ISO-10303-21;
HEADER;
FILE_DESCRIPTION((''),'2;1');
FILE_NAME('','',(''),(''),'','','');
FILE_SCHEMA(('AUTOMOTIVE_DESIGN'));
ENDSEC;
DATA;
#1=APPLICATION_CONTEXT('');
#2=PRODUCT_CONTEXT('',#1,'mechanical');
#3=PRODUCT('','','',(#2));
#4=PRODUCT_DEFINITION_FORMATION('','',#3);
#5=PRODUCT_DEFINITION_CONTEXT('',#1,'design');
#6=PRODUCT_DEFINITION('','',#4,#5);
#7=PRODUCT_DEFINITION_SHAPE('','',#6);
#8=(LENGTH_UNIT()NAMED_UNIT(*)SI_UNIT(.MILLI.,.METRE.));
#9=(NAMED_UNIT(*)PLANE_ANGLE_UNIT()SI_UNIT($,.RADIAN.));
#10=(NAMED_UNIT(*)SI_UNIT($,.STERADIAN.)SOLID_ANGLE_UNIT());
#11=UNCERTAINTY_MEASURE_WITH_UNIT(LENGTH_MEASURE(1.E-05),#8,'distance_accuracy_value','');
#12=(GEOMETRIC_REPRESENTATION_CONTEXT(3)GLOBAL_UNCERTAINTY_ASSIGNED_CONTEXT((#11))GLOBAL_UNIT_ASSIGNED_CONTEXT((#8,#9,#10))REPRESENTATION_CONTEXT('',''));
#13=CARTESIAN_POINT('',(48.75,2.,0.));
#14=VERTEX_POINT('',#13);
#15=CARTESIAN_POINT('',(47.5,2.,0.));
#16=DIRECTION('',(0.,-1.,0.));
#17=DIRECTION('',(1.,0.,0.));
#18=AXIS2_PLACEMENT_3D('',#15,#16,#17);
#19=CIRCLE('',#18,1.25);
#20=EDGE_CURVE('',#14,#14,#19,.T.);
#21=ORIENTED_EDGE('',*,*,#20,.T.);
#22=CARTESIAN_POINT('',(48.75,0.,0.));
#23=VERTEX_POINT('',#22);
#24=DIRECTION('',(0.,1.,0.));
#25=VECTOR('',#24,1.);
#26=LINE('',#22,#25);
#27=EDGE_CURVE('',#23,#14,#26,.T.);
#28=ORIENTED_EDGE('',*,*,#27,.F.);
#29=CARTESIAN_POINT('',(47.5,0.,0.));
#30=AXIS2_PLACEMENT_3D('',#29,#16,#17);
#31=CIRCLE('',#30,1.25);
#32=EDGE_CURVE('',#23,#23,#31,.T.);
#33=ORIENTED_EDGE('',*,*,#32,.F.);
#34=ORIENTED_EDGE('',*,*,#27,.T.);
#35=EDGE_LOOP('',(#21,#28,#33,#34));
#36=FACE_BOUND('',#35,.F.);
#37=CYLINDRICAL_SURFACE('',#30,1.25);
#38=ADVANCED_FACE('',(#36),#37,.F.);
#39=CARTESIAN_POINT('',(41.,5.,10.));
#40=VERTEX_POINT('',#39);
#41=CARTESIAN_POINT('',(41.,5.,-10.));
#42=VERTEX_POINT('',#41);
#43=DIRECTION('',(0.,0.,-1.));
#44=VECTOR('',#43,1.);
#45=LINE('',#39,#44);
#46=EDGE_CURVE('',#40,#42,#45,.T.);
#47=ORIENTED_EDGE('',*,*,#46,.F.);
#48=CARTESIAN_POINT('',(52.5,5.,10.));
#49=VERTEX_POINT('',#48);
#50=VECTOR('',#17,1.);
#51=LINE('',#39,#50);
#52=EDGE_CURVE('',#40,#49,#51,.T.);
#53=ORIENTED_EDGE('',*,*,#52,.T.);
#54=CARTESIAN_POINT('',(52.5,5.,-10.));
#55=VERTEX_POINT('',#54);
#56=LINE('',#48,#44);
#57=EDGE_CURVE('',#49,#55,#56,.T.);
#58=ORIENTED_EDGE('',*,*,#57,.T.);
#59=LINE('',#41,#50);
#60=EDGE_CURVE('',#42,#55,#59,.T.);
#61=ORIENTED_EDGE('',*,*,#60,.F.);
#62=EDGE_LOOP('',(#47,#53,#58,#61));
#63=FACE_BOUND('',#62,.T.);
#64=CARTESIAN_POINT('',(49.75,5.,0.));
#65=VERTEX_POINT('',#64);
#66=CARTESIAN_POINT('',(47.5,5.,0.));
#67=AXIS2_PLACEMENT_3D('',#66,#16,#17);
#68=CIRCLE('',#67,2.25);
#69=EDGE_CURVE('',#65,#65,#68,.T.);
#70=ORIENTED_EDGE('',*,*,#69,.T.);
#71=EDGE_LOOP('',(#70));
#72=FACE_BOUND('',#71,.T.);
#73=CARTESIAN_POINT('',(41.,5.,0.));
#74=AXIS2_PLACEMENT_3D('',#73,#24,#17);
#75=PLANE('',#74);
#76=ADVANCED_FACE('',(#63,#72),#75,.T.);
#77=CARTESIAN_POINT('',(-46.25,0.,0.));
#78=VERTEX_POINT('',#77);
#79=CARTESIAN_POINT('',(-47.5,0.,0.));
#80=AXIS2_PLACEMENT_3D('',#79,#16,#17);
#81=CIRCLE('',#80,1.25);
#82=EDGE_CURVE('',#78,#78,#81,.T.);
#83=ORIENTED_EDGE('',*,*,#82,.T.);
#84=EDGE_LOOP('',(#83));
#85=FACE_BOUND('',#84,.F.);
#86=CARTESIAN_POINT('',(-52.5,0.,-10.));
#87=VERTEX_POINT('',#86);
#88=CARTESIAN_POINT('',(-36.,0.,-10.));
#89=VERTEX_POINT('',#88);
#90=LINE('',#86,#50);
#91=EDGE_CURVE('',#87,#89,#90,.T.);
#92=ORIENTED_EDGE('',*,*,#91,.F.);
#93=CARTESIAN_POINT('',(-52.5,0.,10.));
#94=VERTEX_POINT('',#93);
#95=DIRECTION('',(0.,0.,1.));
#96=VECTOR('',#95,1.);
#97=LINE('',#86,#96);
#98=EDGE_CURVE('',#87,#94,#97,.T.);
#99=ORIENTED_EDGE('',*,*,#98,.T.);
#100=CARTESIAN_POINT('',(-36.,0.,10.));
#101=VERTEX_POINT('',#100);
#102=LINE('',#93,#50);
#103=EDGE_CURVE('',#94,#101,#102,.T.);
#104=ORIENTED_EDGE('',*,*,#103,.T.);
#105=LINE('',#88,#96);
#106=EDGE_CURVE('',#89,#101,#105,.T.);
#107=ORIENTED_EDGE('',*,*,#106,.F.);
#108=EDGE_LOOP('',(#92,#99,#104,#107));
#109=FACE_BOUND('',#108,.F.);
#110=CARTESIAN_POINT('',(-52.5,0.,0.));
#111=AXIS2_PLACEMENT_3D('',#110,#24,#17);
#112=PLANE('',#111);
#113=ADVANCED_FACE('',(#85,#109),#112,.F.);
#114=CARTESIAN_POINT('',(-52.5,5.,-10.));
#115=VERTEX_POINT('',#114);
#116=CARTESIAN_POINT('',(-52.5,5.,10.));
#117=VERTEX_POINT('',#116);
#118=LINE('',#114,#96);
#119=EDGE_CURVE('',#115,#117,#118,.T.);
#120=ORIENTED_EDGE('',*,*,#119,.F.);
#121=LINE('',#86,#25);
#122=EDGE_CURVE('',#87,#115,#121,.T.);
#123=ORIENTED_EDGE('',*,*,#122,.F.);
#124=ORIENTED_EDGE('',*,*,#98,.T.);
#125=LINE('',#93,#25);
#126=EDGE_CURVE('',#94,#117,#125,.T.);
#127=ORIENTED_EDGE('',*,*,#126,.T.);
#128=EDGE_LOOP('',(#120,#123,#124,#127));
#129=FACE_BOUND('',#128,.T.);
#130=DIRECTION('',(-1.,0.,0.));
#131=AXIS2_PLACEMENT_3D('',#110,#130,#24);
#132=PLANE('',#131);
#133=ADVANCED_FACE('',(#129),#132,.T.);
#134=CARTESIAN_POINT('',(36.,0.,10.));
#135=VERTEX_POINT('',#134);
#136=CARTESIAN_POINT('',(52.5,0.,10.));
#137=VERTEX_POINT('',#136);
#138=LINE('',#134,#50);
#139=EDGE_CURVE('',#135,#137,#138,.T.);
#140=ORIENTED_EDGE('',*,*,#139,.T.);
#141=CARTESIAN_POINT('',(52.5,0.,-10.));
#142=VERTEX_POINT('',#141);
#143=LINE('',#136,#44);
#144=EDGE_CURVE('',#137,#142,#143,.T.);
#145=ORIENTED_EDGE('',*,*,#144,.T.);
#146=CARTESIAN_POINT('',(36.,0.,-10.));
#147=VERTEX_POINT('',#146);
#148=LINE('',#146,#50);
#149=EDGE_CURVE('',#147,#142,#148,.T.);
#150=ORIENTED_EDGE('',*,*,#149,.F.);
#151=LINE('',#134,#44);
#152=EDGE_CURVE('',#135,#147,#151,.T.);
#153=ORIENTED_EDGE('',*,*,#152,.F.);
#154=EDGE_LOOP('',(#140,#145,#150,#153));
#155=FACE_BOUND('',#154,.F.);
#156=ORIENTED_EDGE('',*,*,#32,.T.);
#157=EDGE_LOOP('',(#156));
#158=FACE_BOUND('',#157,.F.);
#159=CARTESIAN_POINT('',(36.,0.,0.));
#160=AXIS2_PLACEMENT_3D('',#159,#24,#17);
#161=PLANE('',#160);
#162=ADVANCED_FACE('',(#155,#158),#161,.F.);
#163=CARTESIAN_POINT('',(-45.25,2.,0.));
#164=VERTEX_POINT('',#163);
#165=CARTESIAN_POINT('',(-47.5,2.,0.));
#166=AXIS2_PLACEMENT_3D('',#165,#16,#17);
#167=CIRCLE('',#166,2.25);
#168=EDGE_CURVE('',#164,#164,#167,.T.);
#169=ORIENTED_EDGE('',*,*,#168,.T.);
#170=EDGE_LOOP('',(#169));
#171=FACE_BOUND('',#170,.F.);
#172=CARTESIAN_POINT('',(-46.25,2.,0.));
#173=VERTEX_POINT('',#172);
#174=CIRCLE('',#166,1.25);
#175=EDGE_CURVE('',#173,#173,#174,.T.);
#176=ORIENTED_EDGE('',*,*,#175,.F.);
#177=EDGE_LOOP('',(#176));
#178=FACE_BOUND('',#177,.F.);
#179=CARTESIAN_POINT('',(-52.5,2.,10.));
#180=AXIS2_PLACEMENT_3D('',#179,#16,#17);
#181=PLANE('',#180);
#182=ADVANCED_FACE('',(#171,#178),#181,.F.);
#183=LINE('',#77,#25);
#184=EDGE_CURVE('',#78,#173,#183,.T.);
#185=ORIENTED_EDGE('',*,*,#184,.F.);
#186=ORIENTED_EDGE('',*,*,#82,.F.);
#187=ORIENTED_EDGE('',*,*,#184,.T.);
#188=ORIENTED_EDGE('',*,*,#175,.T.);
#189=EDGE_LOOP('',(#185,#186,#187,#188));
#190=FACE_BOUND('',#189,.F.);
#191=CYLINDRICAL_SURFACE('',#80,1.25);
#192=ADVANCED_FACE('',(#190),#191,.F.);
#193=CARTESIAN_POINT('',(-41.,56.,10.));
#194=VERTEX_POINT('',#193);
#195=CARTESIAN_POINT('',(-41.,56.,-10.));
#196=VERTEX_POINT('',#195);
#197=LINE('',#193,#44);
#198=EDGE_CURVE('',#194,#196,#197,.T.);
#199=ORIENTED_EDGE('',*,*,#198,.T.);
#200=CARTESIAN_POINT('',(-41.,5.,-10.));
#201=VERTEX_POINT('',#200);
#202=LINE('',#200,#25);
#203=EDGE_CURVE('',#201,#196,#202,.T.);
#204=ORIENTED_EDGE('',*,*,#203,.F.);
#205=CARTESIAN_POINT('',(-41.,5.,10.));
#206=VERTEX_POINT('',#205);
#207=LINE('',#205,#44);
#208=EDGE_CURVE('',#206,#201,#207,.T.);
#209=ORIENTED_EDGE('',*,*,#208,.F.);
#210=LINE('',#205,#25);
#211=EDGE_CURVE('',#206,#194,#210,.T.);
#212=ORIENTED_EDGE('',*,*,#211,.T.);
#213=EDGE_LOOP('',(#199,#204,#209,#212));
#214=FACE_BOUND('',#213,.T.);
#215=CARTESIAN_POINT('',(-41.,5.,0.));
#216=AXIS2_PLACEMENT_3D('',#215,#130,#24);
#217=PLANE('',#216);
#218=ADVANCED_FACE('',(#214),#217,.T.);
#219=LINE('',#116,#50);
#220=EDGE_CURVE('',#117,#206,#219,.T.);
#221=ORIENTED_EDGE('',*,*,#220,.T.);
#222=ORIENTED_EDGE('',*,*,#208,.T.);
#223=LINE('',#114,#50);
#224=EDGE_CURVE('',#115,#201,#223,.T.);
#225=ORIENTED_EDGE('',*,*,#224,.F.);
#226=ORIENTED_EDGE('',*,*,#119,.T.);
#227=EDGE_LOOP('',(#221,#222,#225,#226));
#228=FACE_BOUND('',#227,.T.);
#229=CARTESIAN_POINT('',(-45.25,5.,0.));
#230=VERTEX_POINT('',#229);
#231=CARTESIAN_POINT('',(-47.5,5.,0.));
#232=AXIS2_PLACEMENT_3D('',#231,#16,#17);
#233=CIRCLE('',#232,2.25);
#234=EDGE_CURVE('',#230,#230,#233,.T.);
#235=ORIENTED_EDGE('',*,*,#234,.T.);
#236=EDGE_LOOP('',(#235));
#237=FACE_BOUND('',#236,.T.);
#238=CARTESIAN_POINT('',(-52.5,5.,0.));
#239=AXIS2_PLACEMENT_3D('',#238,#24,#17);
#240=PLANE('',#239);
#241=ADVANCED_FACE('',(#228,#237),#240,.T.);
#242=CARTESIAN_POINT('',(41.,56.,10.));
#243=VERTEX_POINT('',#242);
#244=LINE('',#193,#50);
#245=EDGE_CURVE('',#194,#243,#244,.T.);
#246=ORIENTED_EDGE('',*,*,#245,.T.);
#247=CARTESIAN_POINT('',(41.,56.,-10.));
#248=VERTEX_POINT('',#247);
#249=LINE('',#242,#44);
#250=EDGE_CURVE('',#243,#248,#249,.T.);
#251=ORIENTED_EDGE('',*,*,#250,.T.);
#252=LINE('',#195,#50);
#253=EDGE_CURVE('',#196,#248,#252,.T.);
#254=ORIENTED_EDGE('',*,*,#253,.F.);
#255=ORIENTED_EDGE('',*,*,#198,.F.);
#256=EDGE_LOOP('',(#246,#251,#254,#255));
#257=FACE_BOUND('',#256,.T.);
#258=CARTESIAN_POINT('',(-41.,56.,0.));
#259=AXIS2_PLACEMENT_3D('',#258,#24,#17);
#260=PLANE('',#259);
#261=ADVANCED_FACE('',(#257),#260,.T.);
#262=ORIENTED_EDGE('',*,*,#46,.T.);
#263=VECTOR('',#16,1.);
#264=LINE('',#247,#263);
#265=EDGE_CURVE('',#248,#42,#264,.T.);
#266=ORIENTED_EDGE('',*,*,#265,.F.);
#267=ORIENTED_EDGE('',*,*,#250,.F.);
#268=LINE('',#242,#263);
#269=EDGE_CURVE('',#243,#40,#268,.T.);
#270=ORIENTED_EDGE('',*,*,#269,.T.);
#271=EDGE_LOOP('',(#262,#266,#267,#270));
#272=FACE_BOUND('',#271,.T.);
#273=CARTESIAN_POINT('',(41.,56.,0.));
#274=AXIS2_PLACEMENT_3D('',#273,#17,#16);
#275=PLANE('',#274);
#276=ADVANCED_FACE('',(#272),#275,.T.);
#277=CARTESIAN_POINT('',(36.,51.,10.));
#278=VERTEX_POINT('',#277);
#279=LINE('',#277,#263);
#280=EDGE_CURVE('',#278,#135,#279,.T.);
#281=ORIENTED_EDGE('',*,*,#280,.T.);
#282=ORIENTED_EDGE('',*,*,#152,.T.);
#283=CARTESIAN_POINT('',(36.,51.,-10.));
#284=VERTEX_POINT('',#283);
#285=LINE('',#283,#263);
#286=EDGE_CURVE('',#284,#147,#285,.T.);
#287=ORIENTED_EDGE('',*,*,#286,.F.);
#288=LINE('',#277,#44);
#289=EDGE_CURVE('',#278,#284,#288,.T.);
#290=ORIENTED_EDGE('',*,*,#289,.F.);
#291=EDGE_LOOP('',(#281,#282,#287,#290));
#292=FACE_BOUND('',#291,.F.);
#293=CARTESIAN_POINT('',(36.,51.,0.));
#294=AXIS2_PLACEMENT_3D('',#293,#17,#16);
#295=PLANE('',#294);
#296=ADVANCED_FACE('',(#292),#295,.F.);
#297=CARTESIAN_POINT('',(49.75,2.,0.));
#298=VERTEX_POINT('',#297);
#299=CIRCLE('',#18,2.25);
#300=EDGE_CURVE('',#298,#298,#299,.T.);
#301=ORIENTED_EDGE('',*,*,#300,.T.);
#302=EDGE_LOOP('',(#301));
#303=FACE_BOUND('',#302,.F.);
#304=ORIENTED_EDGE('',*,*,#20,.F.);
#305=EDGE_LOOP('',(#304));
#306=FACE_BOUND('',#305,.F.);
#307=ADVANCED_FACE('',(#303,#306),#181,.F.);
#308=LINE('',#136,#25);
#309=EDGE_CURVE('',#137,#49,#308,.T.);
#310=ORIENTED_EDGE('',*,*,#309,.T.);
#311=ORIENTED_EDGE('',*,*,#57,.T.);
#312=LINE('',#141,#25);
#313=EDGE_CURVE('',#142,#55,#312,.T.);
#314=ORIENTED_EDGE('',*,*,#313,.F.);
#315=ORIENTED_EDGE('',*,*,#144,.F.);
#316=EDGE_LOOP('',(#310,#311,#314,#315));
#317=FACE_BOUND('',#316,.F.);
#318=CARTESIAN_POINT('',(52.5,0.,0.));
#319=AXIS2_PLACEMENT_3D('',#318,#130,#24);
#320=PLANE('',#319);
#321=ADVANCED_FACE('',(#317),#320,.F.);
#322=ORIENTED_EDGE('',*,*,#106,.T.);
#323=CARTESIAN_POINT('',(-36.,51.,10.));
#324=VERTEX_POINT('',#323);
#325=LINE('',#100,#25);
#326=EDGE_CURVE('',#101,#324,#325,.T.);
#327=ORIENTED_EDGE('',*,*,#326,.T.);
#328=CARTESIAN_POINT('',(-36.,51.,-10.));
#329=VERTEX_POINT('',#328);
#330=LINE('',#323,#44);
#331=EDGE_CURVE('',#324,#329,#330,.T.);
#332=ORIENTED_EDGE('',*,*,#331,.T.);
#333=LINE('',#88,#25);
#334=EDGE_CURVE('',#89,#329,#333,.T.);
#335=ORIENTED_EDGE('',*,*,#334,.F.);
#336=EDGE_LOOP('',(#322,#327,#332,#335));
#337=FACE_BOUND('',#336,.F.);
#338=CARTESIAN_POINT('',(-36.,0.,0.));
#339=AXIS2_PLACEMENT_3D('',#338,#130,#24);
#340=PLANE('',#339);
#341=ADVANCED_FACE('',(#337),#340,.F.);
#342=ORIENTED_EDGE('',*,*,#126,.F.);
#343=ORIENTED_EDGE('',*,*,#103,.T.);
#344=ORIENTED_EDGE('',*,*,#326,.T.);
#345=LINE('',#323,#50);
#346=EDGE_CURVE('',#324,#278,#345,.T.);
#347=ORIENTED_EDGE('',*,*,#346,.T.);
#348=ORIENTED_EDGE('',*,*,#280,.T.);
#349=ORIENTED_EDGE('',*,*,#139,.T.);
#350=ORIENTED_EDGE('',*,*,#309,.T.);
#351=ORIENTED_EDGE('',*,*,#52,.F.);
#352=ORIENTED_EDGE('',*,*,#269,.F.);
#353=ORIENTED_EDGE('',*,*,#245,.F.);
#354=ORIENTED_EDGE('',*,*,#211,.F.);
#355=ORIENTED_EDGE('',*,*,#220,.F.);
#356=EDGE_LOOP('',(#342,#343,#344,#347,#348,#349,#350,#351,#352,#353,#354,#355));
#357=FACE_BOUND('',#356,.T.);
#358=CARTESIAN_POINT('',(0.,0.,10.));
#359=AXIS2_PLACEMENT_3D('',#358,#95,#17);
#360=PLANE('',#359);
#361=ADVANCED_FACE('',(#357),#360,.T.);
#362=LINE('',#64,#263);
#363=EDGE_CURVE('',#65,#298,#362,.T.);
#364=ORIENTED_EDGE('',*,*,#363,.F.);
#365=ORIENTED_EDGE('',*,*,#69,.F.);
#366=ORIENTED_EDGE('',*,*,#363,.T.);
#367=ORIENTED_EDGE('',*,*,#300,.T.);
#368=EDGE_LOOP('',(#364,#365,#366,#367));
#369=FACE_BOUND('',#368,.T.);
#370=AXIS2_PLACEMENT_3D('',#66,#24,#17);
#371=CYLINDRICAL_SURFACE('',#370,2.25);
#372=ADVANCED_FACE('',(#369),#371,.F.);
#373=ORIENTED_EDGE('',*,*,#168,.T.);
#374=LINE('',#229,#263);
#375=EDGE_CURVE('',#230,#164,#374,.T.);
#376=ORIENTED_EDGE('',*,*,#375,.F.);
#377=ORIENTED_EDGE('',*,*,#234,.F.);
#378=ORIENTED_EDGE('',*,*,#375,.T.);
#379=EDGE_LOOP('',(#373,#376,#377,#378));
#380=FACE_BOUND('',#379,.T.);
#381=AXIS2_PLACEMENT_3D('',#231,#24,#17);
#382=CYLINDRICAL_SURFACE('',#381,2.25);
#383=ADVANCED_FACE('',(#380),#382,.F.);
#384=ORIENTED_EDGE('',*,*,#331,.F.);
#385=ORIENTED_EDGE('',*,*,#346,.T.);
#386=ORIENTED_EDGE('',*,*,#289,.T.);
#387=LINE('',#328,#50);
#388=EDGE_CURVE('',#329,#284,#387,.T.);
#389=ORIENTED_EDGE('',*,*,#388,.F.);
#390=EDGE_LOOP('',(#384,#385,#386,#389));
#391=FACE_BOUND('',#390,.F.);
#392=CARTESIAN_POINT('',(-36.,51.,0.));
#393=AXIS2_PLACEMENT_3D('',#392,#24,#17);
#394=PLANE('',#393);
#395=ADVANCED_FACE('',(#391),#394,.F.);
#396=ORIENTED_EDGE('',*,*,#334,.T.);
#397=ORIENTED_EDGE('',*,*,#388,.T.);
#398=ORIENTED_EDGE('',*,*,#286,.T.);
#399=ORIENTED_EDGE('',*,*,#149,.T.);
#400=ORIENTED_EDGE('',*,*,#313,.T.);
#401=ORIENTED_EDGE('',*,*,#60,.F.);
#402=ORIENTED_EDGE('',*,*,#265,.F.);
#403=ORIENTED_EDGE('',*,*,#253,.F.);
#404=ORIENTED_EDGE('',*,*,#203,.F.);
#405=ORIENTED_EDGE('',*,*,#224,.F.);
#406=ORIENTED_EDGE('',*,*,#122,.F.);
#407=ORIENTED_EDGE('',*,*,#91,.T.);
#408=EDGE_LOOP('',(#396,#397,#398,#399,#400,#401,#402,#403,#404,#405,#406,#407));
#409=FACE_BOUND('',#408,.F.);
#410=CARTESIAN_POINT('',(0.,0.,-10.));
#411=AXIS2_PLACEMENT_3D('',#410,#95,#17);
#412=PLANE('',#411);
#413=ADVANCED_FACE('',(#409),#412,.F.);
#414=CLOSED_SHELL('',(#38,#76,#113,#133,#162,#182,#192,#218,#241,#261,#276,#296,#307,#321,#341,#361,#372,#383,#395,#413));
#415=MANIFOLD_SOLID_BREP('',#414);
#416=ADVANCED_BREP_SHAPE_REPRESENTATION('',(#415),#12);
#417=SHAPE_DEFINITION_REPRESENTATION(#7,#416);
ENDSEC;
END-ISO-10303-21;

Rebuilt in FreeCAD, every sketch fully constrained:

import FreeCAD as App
import Part
import Sketcher


def add_polygon(sketch, points):
    """Adds a closed chain of lines whose ends are joined by coincident constraints."""
    first, n = sketch.GeometryCount, len(points)
    for a, b in zip(points, points[1:] + points[:1]):
        sketch.addGeometry(Part.LineSegment(App.Vector(*a, 0), App.Vector(*b, 0)), False)
    for i in range(n):
        sketch.addConstraint(Sketcher.Constraint("Coincident", first + i, 2, first + (i + 1) % n, 1))

doc = App.newDocument("Part")
body = doc.addObject("PartDesign::Body", "Body")

sketch1 = body.newObject("Sketcher::SketchObject", "Sketch")
sketch1.AttachmentSupport = (doc.getObject("XY_Plane"), [""])
sketch1.MapMode = "FlatFace"
add_polygon(sketch1, [(-41, 5), (-52, 5), (-52, 0), (-36, 0), (-36, 51), (36, 51), (36, 0), (52, 0), (52, 5), (41, 5), (41, 56), (-41, 56)])
sketch1.addConstraint([
    Sketcher.Constraint("Horizontal", 0),
    Sketcher.Constraint("Vertical", 1),
    Sketcher.Constraint("Horizontal", 2),
    Sketcher.Constraint("Vertical", 3),
    Sketcher.Constraint("Horizontal", 4),
    Sketcher.Constraint("Vertical", 5),
    Sketcher.Constraint("Horizontal", 6),
    Sketcher.Constraint("Vertical", 7),
    Sketcher.Constraint("Horizontal", 8),
    Sketcher.Constraint("Vertical", 9),
    Sketcher.Constraint("Horizontal", 10),
    Sketcher.Constraint("Vertical", 11),
    Sketcher.Constraint("Symmetric", 2, 2, 5, 2, -1, 1),
    Sketcher.Constraint("Symmetric", 1, 2, 6, 2, -2),
    Sketcher.Constraint("Symmetric", 8, 2, 11, 2, -2),
    Sketcher.Constraint("Equal", 5, 9),
    Sketcher.Constraint("DistanceX", 4, 1, 4, 2, 72.0),
    Sketcher.Constraint("DistanceY", 1, 2, 1, 1, 5.0),
    Sketcher.Constraint("DistanceY", 3, 1, 3, 2, 51.0),
    Sketcher.Constraint("DistanceX", 2, 1, 2, 2, 16.5),
    Sketcher.Constraint("DistanceX", 5, 2, 8, 2, 5.0),
])
pad1 = body.newObject("PartDesign::Pad", "Pad")
pad1.Profile = sketch1
pad1.Length = 20
pad1.Midplane = True

sketch2 = body.newObject("Sketcher::SketchObject", "Sketch001")
sketch2.AttachmentSupport = (doc.getObject("XZ_Plane"), [""])
sketch2.MapMode = "FlatFace"
sketch2.addGeometry([
    Part.Circle(App.Vector(-47.5, 0, 0), App.Vector(0, 0, 1), 1.2),
    Part.Circle(App.Vector(47.5, 0, 0), App.Vector(0, 0, 1), 1.2),
], False)
sketch2.addConstraint([
    Sketcher.Constraint("Equal", 0, 1),
    Sketcher.Constraint("Symmetric", 0, 3, 1, 3, -1, 1),
    Sketcher.Constraint("PointOnObject", 0, 3, -1),
    Sketcher.Constraint("Diameter", 0, 2.5),
    Sketcher.Constraint("DistanceX", 0, 3, 1, 3, 95.0),
])
pocket1 = body.newObject("PartDesign::Pocket", "Pocket")
pocket1.Profile = sketch2
pocket1.Type = "ThroughAll"

sketch3 = body.newObject("Sketcher::SketchObject", "Sketch002")
sketch3.AttachmentSupport = (doc.getObject("XZ_Plane"), [""])
sketch3.MapMode = "FlatFace"
sketch3.AttachmentOffset = App.Placement(App.Vector(0, 0, -5), App.Rotation())
sketch3.addGeometry([
    Part.Circle(App.Vector(-47.5, 0, 0), App.Vector(0, 0, 1), 2.2),
    Part.Circle(App.Vector(-47.5, 0, 0), App.Vector(0, 0, 1), 1.2),
    Part.Circle(App.Vector(47.5, 0, 0), App.Vector(0, 0, 1), 2.2),
    Part.Circle(App.Vector(47.5, 0, 0), App.Vector(0, 0, 1), 1.2),
], False)
sketch3.addConstraint([
    Sketcher.Constraint("Coincident", 1, 3, 0, 3),
    Sketcher.Constraint("Coincident", 3, 3, 2, 3),
    Sketcher.Constraint("Equal", 0, 2),
    Sketcher.Constraint("Equal", 1, 3),
    Sketcher.Constraint("Symmetric", 0, 3, 2, 3, -1, 1),
    Sketcher.Constraint("PointOnObject", 0, 3, -1),
    Sketcher.Constraint("Diameter", 0, 4.5),
    Sketcher.Constraint("Diameter", 1, 2.5),
    Sketcher.Constraint("DistanceX", 0, 3, 2, 3, 95.0),
])
pocket2 = body.newObject("PartDesign::Pocket", "Pocket001")
pocket2.Profile = sketch3
pocket2.Length = 3
pocket2.Reversed = True

doc.recompute()
